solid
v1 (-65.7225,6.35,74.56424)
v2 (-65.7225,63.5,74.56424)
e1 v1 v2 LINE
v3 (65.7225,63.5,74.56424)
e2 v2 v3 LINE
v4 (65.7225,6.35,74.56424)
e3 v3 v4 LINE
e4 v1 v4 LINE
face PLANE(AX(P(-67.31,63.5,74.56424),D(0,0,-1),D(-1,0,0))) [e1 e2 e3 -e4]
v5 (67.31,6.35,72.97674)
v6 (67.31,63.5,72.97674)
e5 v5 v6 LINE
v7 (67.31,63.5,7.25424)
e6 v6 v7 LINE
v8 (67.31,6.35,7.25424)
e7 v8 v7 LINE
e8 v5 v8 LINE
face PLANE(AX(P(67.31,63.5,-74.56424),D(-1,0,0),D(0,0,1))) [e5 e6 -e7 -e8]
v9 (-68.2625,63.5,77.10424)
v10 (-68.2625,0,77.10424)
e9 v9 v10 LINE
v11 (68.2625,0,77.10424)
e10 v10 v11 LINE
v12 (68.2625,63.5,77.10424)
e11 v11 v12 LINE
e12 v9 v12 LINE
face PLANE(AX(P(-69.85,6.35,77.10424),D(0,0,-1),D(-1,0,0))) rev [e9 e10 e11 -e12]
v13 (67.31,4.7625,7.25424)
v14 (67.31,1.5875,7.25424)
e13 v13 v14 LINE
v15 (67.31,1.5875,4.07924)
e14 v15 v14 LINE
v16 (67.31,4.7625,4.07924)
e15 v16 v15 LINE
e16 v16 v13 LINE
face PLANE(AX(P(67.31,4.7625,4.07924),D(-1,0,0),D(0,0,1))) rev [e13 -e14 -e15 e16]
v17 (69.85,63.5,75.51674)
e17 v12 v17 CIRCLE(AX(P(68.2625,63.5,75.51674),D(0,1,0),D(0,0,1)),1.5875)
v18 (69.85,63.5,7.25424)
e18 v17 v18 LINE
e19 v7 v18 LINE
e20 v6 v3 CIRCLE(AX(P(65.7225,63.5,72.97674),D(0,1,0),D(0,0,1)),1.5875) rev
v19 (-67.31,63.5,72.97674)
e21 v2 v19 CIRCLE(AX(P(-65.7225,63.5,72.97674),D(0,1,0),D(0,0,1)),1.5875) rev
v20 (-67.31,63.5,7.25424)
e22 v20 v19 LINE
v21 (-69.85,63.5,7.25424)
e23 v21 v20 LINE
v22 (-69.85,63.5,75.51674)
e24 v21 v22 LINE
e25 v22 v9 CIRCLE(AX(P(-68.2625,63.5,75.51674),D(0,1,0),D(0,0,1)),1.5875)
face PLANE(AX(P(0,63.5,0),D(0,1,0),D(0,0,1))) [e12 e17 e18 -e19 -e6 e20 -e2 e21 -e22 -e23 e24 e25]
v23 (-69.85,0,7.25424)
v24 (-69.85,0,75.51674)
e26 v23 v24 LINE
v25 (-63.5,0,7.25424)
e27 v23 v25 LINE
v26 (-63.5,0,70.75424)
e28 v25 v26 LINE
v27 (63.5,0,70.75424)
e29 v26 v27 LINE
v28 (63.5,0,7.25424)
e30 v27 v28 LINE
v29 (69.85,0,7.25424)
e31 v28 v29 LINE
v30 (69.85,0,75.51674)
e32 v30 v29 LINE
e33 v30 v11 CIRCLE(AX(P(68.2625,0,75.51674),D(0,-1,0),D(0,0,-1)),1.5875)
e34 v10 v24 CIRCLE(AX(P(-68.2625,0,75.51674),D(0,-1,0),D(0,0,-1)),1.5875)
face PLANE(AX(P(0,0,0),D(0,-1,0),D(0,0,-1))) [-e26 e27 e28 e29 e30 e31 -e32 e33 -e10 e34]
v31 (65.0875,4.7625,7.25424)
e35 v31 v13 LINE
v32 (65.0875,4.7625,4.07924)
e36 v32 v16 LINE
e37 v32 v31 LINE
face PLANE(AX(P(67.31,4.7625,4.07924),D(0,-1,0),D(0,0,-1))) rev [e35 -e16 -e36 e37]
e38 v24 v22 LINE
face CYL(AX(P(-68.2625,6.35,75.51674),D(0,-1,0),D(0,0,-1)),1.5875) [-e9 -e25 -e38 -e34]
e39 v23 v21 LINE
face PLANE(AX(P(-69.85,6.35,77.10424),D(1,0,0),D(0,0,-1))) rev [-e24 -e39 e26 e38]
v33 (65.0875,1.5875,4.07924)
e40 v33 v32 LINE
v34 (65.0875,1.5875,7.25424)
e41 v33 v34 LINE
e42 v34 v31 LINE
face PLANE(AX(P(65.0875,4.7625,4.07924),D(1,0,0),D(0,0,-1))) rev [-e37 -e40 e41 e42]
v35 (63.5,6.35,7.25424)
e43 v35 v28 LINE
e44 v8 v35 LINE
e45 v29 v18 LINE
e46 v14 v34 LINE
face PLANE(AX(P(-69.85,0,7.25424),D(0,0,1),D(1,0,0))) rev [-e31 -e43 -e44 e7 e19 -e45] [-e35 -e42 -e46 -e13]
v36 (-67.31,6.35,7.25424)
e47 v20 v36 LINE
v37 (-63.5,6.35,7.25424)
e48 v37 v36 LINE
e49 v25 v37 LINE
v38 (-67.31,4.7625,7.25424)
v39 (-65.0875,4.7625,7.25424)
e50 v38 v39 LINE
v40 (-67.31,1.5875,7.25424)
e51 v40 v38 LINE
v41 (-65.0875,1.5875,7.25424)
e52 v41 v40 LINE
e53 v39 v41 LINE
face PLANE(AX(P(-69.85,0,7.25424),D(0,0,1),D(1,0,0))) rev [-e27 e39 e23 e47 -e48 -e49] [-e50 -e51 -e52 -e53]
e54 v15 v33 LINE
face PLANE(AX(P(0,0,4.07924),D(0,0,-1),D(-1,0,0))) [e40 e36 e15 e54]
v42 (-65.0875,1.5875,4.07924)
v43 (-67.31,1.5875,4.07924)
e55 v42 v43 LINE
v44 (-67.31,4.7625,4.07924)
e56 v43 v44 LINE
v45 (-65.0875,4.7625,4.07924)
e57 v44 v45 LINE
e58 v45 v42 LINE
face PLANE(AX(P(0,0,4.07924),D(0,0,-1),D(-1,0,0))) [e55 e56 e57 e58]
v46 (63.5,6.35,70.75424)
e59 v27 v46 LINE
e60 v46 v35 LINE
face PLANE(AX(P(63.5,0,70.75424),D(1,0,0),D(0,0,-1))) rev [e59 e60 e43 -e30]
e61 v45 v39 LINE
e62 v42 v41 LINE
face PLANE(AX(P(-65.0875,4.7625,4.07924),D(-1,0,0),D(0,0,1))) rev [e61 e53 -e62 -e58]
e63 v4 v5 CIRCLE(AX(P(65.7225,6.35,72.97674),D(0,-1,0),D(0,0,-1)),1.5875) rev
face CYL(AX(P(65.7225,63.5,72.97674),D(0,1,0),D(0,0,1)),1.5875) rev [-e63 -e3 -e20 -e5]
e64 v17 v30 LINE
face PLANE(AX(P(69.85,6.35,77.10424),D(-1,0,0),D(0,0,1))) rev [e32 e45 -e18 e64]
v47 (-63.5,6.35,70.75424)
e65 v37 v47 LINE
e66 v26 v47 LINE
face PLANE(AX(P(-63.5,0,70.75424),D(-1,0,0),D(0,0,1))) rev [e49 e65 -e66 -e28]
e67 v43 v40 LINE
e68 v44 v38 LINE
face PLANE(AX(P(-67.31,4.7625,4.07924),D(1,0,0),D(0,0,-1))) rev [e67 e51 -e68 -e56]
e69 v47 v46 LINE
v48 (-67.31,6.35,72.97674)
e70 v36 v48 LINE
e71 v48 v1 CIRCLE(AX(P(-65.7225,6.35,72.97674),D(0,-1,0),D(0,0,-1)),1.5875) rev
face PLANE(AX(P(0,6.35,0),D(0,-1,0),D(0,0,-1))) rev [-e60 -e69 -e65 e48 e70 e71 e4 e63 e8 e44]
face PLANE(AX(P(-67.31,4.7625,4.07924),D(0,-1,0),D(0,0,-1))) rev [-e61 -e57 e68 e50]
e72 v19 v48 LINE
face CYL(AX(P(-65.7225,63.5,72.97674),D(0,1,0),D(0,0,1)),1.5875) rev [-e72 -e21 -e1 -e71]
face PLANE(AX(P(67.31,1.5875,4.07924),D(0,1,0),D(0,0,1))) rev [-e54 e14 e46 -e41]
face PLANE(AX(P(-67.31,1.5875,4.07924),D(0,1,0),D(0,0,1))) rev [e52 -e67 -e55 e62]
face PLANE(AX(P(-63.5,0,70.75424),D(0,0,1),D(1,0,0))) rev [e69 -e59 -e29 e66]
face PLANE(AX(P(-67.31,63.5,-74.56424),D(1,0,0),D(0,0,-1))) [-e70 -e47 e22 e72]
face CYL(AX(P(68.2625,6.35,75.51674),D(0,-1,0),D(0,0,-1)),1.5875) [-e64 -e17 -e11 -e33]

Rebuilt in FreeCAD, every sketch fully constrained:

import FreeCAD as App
import Part
import Sketcher

V = App.Vector
Q = App.Units.Quantity


def edges_at(feature, points):
    """Names of the edges that pass closest to the given points."""
    edges = feature.Shape.Edges
    near = lambda p: min(range(len(edges)), key=lambda i: edges[i].distToShape(Part.Vertex(*p))[0])
    return sorted({f"Edge{near(p) + 1}" for p in points})

doc = App.newDocument("Part")
body = doc.addObject("PartDesign::Body", "Body")

sketch1 = doc.addObject("Sketcher::SketchObject", "Sketch")
body.addObject(sketch1)
sketch1.AttachmentSupport = (doc.XZ_Plane, [""])
sketch1.MapMode = "FlatFace"
sketch1.addGeometry([
    Part.LineSegment(V(-69.85, -77.10424, 0), V(-69.85, 77.10424, 0)),
    Part.LineSegment(V(-69.85, 77.10424, 0), V(69.85, 77.10424, 0)),
    Part.LineSegment(V(69.85, 77.10424, 0), V(69.85, -77.10424, 0)),
    Part.LineSegment(V(69.85, -77.10424, 0), V(-69.85, -77.10424, 0)),
], False)
sketch1.addConstraint([
    Sketcher.Constraint("Coincident", 0, 2, 1, 1),
    Sketcher.Constraint("Coincident", 1, 2, 2, 1),
    Sketcher.Constraint("Coincident", 2, 2, 3, 1),
    Sketcher.Constraint("Coincident", 3, 2, 0, 1),
    Sketcher.Constraint("Vertical", 0),
    Sketcher.Constraint("Horizontal", 1),
    Sketcher.Constraint("Vertical", 2),
    Sketcher.Constraint("Horizontal", 3),
    Sketcher.Constraint("Symmetric", 0, 2, 2, 2, -1, 1),
    Sketcher.Constraint("DistanceX", 1, 1, 1, 2, Q("5.5 in")),
    Sketcher.Constraint("DistanceY", 0, 1, 0, 2, Q("6.0712 in")),
])
pad1 = doc.addObject("PartDesign::Pad", "Pad")
body.addObject(pad1)
pad1.Profile = sketch1
pad1.Length = Q("0.25 in")
pad1.Reversed = True

sketch2 = doc.addObject("Sketcher::SketchObject", "Sketch001")
body.addObject(sketch2)
sketch2.AttachmentSupport = (doc.XZ_Plane, [""])
sketch2.MapMode = "FlatFace"
sketch2.AttachmentOffset = App.Placement(V(0, 0, -0.25 * 25.4), App.Rotation())
sketch2.addGeometry([
    Part.LineSegment(V(-63.5, -70.75424, 0), V(-63.5, 70.75424, 0)),
    Part.LineSegment(V(-63.5, 70.75424, 0), V(63.5, 70.75424, 0)),
    Part.LineSegment(V(63.5, 70.75424, 0), V(63.5, -70.75424, 0)),
    Part.LineSegment(V(63.5, -70.75424, 0), V(-63.5, -70.75424, 0)),
], False)
sketch2.addConstraint([
    Sketcher.Constraint("Coincident", 0, 2, 1, 1),
    Sketcher.Constraint("Coincident", 1, 2, 2, 1),
    Sketcher.Constraint("Coincident", 2, 2, 3, 1),
    Sketcher.Constraint("Coincident", 3, 2, 0, 1),
    Sketcher.Constraint("Vertical", 0),
    Sketcher.Constraint("Horizontal", 1),
    Sketcher.Constraint("Vertical", 2),
    Sketcher.Constraint("Horizontal", 3),
    Sketcher.Constraint("Symmetric", 0, 2, 2, 2, -1, 1),
    Sketcher.Constraint("DistanceX", 1, 1, 1, 2, Q("5 in")),
    Sketcher.Constraint("DistanceY", 0, 1, 0, 2, Q("5.5712 in")),
])
pocket1 = doc.addObject("PartDesign::Pocket", "Pocket")
body.addObject(pocket1)
pocket1.Profile = sketch2
pocket1.Length = Q("0.25 in")
pocket1.Reversed = True

sketch3 = doc.addObject("Sketcher::SketchObject", "Sketch002")
body.addObject(sketch3)
sketch3.AttachmentSupport = (doc.XZ_Plane, [""])
sketch3.MapMode = "FlatFace"
sketch3.AttachmentOffset = App.Placement(V(0, 0, -0.25 * 25.4), App.Rotation())
sketch3.addGeometry([
    Part.LineSegment(V(-69.85, -77.10424, 0), V(-69.85, 77.10424, 0)),
    Part.LineSegment(V(-69.85, 77.10424, 0), V(69.85, 77.10424, 0)),
    Part.LineSegment(V(69.85, 77.10424, 0), V(69.85, -77.10424, 0)),
    Part.LineSegment(V(69.85, -77.10424, 0), V(-69.85, -77.10424, 0)),
    Part.LineSegment(V(67.31, 74.56424, 0), V(-67.31, 74.56424, 0)),
    Part.LineSegment(V(-67.31, 74.56424, 0), V(-67.31, -74.56424, 0)),
    Part.LineSegment(V(-67.31, -74.56424, 0), V(67.31, -74.56424, 0)),
    Part.LineSegment(V(67.31, -74.56424, 0), V(67.31, 74.56424, 0)),
], False)
sketch3.addConstraint([
    Sketcher.Constraint("Coincident", 0, 2, 1, 1),
    Sketcher.Constraint("Coincident", 1, 2, 2, 1),
    Sketcher.Constraint("Coincident", 2, 2, 3, 1),
    Sketcher.Constraint("Coincident", 3, 2, 0, 1),
    Sketcher.Constraint("Coincident", 4, 2, 5, 1),
    Sketcher.Constraint("Coincident", 5, 2, 6, 1),
    Sketcher.Constraint("Coincident", 6, 2, 7, 1),
    Sketcher.Constraint("Coincident", 7, 2, 4, 1),
    Sketcher.Constraint("Vertical", 0),
    Sketcher.Constraint("Horizontal", 1),
    Sketcher.Constraint("Vertical", 2),
    Sketcher.Constraint("Horizontal", 3),
    Sketcher.Constraint("Horizontal", 4),
    Sketcher.Constraint("Vertical", 5),
    Sketcher.Constraint("Horizontal", 6),
    Sketcher.Constraint("Vertical", 7),
    Sketcher.Constraint("Symmetric", 0, 2, 2, 2, -1, 1),
    Sketcher.Constraint("Symmetric", 4, 2, 6, 2, -1, 1),
    Sketcher.Constraint("DistanceX", 1, 1, 1, 2, Q("5.5 in")),
    Sketcher.Constraint("DistanceX", 4, 2, 4, 1, Q("5.3 in")),
    Sketcher.Constraint("DistanceY", 4, 2, 0, 2, Q("0.1 in")),
    Sketcher.Constraint("DistanceY", 0, 1, 0, 2, Q("6.0712 in")),
])
pad2 = doc.addObject("PartDesign::Pad", "Pad001")
body.addObject(pad2)
pad2.Profile = sketch3
pad2.Length = Q("2.25 in")
pad2.Reversed = True

sketch4 = doc.addObject("Sketcher::SketchObject", "Sketch003")
body.addObject(sketch4)
sketch4.AttachmentSupport = (doc.XZ_Plane, [""])
sketch4.MapMode = "FlatFace"
sketch4.AttachmentOffset = App.Placement(V(0, 0, -2.5 * 25.4), App.Rotation())
sketch4.addGeometry([
    Part.LineSegment(V(-69.85, -77.10424, 0), V(-69.85, 7.25424, 0)),
    Part.LineSegment(V(-69.85, 7.25424, 0), V(69.85, 7.25424, 0)),
    Part.LineSegment(V(69.85, 7.25424, 0), V(69.85, -77.10424, 0)),
    Part.LineSegment(V(69.85, -77.10424, 0), V(-69.85, -77.10424, 0)),
], False)
sketch4.addConstraint([
    Sketcher.Constraint("Coincident", 0, 2, 1, 1),
    Sketcher.Constraint("Coincident", 1, 2, 2, 1),
    Sketcher.Constraint("Coincident", 2, 2, 3, 1),
    Sketcher.Constraint("Coincident", 3, 2, 0, 1),
    Sketcher.Constraint("Vertical", 0),
    Sketcher.Constraint("Horizontal", 1),
    Sketcher.Constraint("Vertical", 2),
    Sketcher.Constraint("Horizontal", 3),
    Sketcher.Constraint("DistanceX", 1, 1, 1, 2, Q("5.5 in")),
    Sketcher.Constraint("DistanceX", 0, 2, -1, 1, Q("2.75 in")),
    Sketcher.Constraint("DistanceY", 0, 1, 0, 2, Q("3.3212 in")),
    Sketcher.Constraint("DistanceY", -1, 1, 0, 2, Q("0.2856 in")),
])
pocket2 = doc.addObject("PartDesign::Pocket", "Pocket001")
body.addObject(pocket2)
pocket2.Profile = sketch4
pocket2.Type = "ThroughAll"
pocket2.Reversed = True

sketch5 = doc.addObject("Sketcher::SketchObject", "Sketch004")
body.addObject(sketch5)
sketch5.AttachmentSupport = (doc.XY_Plane, [""])
sketch5.MapMode = "FlatFace"
sketch5.AttachmentOffset = App.Placement(V(0, 0, 0.2856 * 25.4), App.Rotation())
sketch5.addGeometry([
    Part.LineSegment(V(67.31, 4.7625, 0), V(67.31, 1.5875, 0)),
    Part.LineSegment(V(67.31, 1.5875, 0), V(65.0875, 1.5875, 0)),
    Part.LineSegment(V(65.0875, 1.5875, 0), V(65.0875, 4.7625, 0)),
    Part.LineSegment(V(65.0875, 4.7625, 0), V(67.31, 4.7625, 0)),
    Part.LineSegment(V(-65.0875, 4.7625, 0), V(-65.0875, 1.5875, 0)),
    Part.LineSegment(V(-65.0875, 1.5875, 0), V(-67.31, 1.5875, 0)),
    Part.LineSegment(V(-67.31, 1.5875, 0), V(-67.31, 4.7625, 0)),
    Part.LineSegment(V(-67.31, 4.7625, 0), V(-65.0875, 4.7625, 0)),
], False)
sketch5.addConstraint([
    Sketcher.Constraint("Coincident", 0, 2, 1, 1),
    Sketcher.Constraint("Coincident", 1, 2, 2, 1),
    Sketcher.Constraint("Coincident", 2, 2, 3, 1),
    Sketcher.Constraint("Coincident", 3, 2, 0, 1),
    Sketcher.Constraint("Coincident", 4, 2, 5, 1),
    Sketcher.Constraint("Coincident", 5, 2, 6, 1),
    Sketcher.Constraint("Coincident", 6, 2, 7, 1),
    Sketcher.Constraint("Coincident", 7, 2, 4, 1),
    Sketcher.Constraint("Vertical", 0),
    Sketcher.Constraint("Horizontal", 1),
    Sketcher.Constraint("Vertical", 2),
    Sketcher.Constraint("Horizontal", 3),
    Sketcher.Constraint("Vertical", 4),
    Sketcher.Constraint("Horizontal", 5),
    Sketcher.Constraint("Vertical", 6),
    Sketcher.Constraint("Horizontal", 7),
    Sketcher.Constraint("Symmetric", 1, 2, 4, 2, -2),
    Sketcher.Constraint("Symmetric", 3, 2, 6, 2, -2),
    Sketcher.Constraint("DistanceX", 5, 2, 0, 2, Q("5.3 in")),
    Sketcher.Constraint("DistanceY", 0, 2, 0, 1, Q("0.125 in")),
    Sketcher.Constraint("DistanceX", 1, 2, 1, 1, Q("0.0875 in")),
    Sketcher.Constraint("DistanceY", -1, 1, 0, 2, Q("0.0625 in")),
])
pad3 = doc.addObject("PartDesign::Pad", "Pad002")
body.addObject(pad3)
pad3.Profile = sketch5
pad3.Length = Q("0.125 in")
pad3.Reversed = True
doc.recompute()

fillet = doc.addObject("PartDesign::Fillet", "Fillet")
body.addObject(fillet)
fillet.Base = (pad3, edges_at(pad3, [
    (-67.31, 34.925, 74.564),
    (67.31, 34.925, 74.564),
    (69.85, 31.75, 77.104),
    (-69.85, 31.75, 77.104),
]))
fillet.Radius = Q("0.0625 in")

doc.recompute()
